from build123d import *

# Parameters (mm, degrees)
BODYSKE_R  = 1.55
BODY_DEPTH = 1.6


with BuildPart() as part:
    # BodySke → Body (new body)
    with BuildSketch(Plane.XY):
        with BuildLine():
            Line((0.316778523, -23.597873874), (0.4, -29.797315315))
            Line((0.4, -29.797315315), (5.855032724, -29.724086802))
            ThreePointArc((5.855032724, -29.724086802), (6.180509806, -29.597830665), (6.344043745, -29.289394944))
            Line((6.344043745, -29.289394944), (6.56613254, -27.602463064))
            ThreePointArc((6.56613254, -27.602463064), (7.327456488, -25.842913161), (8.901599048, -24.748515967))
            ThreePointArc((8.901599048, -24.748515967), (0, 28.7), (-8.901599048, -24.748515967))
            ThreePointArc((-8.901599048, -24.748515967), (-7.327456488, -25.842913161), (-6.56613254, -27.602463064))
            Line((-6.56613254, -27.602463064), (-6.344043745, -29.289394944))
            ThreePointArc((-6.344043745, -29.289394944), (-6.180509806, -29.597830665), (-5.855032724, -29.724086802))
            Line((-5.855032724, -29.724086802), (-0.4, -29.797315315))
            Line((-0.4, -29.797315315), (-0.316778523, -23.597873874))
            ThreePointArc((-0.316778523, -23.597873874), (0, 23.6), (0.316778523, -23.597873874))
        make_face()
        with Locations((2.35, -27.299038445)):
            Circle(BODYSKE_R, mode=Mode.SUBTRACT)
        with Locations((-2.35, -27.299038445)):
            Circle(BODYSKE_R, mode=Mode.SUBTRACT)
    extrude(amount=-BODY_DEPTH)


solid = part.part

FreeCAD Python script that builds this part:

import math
import FreeCAD as App
import Part
import Sketcher
from FreeCAD import Vector
Q = App.Units.Quantity

doc = App.newDocument("Part")
body = doc.addObject("PartDesign::Body", "Body")

# Sketch on XY plane
sketch1 = body.newObject("Sketcher::SketchObject", "Sketch")
sketch1.AttachmentSupport = (doc.getObject("XY_Plane"), [""])
sketch1.MapMode = "FlatFace"
sketch1.addGeometry([
    Part.LineSegment(Vector(0.316779, -23.597874, 0), Vector(0.4, -29.797315, 0)),  # 0
    Part.LineSegment(Vector(0.4, -29.797315, 0), Vector(5.855033, -29.724087, 0)),  # 1
    Part.ArcOfCircle(Part.Circle(Vector(5.848321, -29.224132, 0), Vector(0, 0, 1), 0.5), math.radians(-89.230906), math.radians(-7.5)),  # 2
    Part.LineSegment(Vector(6.344044, -29.289395, 0), Vector(6.566133, -27.602463, 0)),  # 3
    Part.ArcOfCircle(Part.Circle(Vector(10.035837, -28.059258, 0), Vector(0, 0, 1), 3.499644), math.radians(108.911112), math.radians(172.5)),  # 4
    Part.ArcOfCircle(Part.Circle(Vector(0, 1.234482, 0), Vector(0, 0, 1), 27.465518), math.radians(-71.088888), math.radians(251.088888)),  # 5
    Part.ArcOfCircle(Part.Circle(Vector(-10.035837, -28.059258, 0), Vector(0, 0, 1), 3.499644), math.radians(7.5), math.radians(71.088888)),  # 6
    Part.LineSegment(Vector(-6.566133, -27.602463, 0), Vector(-6.344044, -29.289395, 0)),  # 7
    Part.ArcOfCircle(Part.Circle(Vector(-5.848321, -29.224132, 0), Vector(0, 0, 1), 0.5), math.radians(-172.5), math.radians(-90.769094)),  # 8
    Part.LineSegment(Vector(-5.855033, -29.724087, 0), Vector(-0.4, -29.797315, 0)),  # 9
    Part.LineSegment(Vector(-0.4, -29.797315, 0), Vector(-0.316779, -23.597874, 0)),  # 10
    Part.ArcOfCircle(Part.Circle(Vector(0, 0, 0), Vector(0, 0, 1), 23.6), math.radians(-89.230906), math.radians(269.230906)),  # 11
    Part.Circle(Vector(-2.35, -27.299038, 0), Vector(0, 0, 1), 1.55),  # 12
    Part.Circle(Vector(2.35, -27.299038, 0), Vector(0, 0, 1), 1.55),  # 13
], False)
sketch1.addConstraint([
    Sketcher.Constraint("Coincident", 0, 2, 1, 1),
    Sketcher.Constraint("Tangent", 1, 2, 2, 1),
    Sketcher.Constraint("Tangent", 2, 2, 3, 1),
    Sketcher.Constraint("Tangent", 3, 2, 4, 2),
    Sketcher.Constraint("Tangent", 4, 1, 5, 1),
    Sketcher.Constraint("Tangent", 5, 2, 6, 2),
    Sketcher.Constraint("Tangent", 6, 1, 7, 1),
    Sketcher.Constraint("Tangent", 7, 2, 8, 1),
    Sketcher.Constraint("Tangent", 8, 2, 9, 1),
    Sketcher.Constraint("Coincident", 9, 2, 10, 1),
    Sketcher.Constraint("Coincident", 10, 2, 11, 2),
    Sketcher.Constraint("Coincident", 11, 1, 0, 1),
    Sketcher.Constraint("Coincident", 11, 3, -1, 1),
    Sketcher.Constraint("Equal", 4, 6),
    Sketcher.Constraint("Equal", 2, 8),
    Sketcher.Constraint("Equal", 12, 13),
    Sketcher.Constraint("Symmetric", 4, 3, 6, 3, -2),
    Sketcher.Constraint("Symmetric", 2, 3, 8, 3, -2),
    Sketcher.Constraint("Symmetric", 12, 3, 13, 3, -2),
    Sketcher.Constraint("Symmetric", 0, 2, 9, 2, -2),
    Sketcher.Constraint("Perpendicular", 0, 1),
    Sketcher.Constraint("Perpendicular", 9, 10),
    Sketcher.Constraint("Diameter", 12, Q("3.1 mm")),
    Sketcher.Constraint("Radius", 2, Q("0.5 mm")),
    Sketcher.Constraint("Radius", 11, Q("23.6 mm")),
    Sketcher.Constraint("Angle", 3, Q("82.5 deg")),
    Sketcher.Constraint("Distance", 0, Q("6.2 mm")),
    Sketcher.Constraint("DistanceX", -1, 1, 0, 2, Q("0.4 mm")),
    Sketcher.Constraint("DistanceX", 12, 3, 13, 3, Q("4.7 mm")),
    Sketcher.Constraint("Radius", 4, Q("3.499644 mm")),
    Sketcher.Constraint("Radius", 5, Q("27.465518 mm")),
    Sketcher.Constraint("DistanceX", -1, 1, 4, 1, Q("8.901599 mm")),
    Sketcher.Constraint("DistanceX", 1, 2, 3, 2, Q("0.7111 mm")),
    Sketcher.Constraint("DistanceY", 0, 2, 5, 2, Q("5.048799 mm")),
    Sketcher.Constraint("DistanceY", 12, 3, -1, 1, Q("27.299038 mm")),
])
pad1 = body.newObject("PartDesign::Pad", "Pad")
pad1.Profile = sketch1
pad1.Length = 1.6
pad1.Reversed = True

doc.recompute()
